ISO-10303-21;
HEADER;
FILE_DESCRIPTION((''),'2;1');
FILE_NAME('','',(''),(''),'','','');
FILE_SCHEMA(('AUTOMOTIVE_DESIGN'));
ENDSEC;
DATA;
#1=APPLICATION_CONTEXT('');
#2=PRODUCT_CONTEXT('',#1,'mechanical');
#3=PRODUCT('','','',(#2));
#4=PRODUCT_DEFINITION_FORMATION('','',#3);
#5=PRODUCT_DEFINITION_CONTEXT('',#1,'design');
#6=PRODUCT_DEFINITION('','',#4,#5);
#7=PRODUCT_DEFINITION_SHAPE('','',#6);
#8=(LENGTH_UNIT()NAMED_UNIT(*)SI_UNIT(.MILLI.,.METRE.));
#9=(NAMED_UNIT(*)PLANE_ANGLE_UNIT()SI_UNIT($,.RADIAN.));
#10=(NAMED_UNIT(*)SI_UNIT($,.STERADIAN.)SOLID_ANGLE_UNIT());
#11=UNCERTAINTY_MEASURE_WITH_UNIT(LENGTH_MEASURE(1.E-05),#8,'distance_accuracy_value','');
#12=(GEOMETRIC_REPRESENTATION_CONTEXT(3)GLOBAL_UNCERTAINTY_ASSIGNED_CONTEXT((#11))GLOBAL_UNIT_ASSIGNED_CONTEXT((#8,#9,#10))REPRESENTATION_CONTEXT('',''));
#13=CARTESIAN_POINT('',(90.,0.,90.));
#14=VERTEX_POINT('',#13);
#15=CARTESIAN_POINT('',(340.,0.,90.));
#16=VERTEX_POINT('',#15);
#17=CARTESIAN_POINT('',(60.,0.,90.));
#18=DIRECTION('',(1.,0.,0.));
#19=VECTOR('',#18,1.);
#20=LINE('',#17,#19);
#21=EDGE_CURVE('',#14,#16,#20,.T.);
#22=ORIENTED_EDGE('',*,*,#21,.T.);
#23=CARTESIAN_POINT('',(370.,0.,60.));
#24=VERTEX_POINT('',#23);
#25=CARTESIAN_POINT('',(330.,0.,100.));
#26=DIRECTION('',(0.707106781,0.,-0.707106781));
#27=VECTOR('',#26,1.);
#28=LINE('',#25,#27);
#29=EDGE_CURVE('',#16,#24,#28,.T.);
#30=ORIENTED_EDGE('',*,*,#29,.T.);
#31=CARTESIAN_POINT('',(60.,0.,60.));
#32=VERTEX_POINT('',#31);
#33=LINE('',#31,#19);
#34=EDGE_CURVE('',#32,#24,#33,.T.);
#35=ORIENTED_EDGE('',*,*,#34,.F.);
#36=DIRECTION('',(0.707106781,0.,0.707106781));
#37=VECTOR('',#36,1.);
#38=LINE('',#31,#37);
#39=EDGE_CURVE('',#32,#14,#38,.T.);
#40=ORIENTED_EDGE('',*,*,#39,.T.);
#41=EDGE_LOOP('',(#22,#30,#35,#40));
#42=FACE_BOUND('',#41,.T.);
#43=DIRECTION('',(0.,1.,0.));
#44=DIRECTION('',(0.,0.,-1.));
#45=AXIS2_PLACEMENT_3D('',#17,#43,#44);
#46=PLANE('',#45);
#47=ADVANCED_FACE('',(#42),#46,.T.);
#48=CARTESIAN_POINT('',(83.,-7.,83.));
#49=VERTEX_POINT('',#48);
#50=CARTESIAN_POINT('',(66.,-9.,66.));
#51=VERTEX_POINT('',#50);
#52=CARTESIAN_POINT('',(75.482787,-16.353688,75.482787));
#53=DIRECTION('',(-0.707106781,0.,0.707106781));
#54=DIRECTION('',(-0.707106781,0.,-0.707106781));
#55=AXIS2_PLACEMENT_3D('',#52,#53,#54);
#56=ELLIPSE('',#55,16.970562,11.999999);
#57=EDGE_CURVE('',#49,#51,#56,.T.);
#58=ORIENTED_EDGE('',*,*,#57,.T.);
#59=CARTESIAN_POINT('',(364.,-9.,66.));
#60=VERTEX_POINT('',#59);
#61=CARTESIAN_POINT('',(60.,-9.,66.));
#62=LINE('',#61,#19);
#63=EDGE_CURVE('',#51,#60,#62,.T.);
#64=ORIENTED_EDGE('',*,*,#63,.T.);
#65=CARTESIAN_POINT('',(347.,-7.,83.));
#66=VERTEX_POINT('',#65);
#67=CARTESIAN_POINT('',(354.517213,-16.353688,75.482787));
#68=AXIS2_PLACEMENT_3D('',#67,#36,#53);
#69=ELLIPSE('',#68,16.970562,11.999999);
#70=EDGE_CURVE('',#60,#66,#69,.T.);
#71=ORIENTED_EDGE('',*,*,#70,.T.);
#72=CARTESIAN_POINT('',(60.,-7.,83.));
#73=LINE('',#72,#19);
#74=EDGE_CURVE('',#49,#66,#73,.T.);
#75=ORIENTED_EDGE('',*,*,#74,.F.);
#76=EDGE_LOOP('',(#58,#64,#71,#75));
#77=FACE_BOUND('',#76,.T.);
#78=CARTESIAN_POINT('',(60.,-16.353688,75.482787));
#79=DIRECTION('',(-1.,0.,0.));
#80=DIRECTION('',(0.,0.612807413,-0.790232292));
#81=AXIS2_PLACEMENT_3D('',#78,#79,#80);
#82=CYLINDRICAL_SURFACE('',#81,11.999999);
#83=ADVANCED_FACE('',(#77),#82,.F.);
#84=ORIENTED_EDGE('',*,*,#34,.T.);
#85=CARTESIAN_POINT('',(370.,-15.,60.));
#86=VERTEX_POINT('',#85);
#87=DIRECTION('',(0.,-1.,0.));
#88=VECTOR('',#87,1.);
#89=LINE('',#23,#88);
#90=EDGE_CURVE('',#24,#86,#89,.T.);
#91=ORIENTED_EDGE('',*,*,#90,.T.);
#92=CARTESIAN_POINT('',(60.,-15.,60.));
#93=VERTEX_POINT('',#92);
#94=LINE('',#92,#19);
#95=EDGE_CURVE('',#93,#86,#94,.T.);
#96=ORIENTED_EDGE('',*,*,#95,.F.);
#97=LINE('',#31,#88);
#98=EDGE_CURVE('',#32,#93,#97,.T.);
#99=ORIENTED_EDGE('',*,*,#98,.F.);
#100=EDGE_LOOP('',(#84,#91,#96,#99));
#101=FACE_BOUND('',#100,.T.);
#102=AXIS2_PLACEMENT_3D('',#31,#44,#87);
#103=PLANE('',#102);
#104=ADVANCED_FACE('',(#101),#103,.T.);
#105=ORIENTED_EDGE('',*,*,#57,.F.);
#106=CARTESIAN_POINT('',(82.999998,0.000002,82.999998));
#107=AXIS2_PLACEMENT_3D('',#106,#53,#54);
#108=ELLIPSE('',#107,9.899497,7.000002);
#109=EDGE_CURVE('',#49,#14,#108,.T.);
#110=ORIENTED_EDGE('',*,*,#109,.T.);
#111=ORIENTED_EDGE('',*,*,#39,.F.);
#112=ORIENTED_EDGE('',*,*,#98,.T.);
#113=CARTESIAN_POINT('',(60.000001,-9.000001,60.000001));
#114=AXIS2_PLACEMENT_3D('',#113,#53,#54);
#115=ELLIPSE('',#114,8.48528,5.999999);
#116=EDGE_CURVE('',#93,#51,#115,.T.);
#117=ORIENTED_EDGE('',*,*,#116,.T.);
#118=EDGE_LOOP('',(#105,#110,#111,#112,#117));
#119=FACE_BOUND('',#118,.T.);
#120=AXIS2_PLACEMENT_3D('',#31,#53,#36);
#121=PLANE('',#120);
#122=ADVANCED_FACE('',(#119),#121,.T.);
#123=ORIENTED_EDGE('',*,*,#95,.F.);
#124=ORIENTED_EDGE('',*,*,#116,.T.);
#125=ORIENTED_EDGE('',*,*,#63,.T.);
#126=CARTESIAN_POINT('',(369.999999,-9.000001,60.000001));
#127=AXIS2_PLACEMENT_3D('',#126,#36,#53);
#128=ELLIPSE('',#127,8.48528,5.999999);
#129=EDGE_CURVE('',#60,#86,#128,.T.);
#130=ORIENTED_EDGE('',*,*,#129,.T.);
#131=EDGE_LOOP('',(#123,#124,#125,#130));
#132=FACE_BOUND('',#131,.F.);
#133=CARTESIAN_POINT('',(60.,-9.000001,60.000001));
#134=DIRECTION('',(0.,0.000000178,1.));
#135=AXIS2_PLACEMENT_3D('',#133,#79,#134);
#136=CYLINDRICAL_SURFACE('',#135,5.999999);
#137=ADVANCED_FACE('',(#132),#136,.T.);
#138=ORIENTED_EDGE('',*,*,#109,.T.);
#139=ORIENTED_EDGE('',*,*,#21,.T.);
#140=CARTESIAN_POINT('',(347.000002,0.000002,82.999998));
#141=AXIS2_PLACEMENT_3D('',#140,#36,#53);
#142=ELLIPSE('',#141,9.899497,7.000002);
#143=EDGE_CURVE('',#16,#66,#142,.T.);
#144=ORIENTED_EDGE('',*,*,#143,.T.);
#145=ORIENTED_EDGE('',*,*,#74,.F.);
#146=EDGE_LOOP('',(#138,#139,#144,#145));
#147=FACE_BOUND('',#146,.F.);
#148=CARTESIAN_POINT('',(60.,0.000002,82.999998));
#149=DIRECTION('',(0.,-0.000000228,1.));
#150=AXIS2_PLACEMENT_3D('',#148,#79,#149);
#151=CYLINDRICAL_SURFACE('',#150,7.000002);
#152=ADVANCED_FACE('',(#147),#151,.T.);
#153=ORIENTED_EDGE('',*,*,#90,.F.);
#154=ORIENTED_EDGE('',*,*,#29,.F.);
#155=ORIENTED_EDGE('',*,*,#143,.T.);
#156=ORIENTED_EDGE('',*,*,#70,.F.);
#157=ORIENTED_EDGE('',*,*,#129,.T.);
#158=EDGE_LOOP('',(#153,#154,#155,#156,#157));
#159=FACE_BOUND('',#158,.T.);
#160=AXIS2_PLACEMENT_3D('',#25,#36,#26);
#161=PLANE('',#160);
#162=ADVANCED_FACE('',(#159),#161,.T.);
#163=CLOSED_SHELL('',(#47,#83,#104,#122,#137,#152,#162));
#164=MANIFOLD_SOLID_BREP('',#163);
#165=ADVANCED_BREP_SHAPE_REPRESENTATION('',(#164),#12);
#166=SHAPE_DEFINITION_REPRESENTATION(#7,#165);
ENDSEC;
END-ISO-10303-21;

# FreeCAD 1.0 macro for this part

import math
import FreeCAD as App
import Part
import Sketcher
Q = App.Units.Quantity

doc = App.newDocument("Part")
body = doc.addObject("PartDesign::Body", "Body")

# Sketch on XZ plane
sketch1 = body.newObject("Sketcher::SketchObject", "Sketch")
sketch1.AttachmentSupport = (doc.getObject("XZ_Plane"), [""])
sketch1.MapMode = "FlatFace"
sketch1.addGeometry([
    Part.LineSegment(App.Vector(330, 100, 0), App.Vector(370, 60, 0)),
    Part.LineSegment(App.Vector(370, 60, 0), App.Vector(370, 100, 0)),
    Part.LineSegment(App.Vector(370, 100, 0), App.Vector(330, 100, 0)),
], False)
sketch1.addConstraint([
    Sketcher.Constraint("Coincident", 0, 2, 1, 1),
    Sketcher.Constraint("Coincident", 1, 2, 2, 1),
    Sketcher.Constraint("Coincident", 2, 2, 0, 1),
    Sketcher.Constraint("Vertical", 1),
    Sketcher.Constraint("Horizontal", 2),
    Sketcher.Constraint("Equal", 2, 1),
    Sketcher.Constraint("DistanceX", 2, 2, 2, 1, Q("40 mm")),
    Sketcher.Constraint("DistanceX", -1, 1, 0, 2, Q("370 mm")),
    Sketcher.Constraint("DistanceY", -1, 1, 0, 2, Q("60 mm")),
])
pad1 = body.newObject("PartDesign::Pad", "Pad")
pad1.Profile = sketch1
pad1.Length = 40
body2 = doc.addObject("PartDesign::Body", "Body001")

# Sketch on XZ plane
sketch2 = body2.newObject("Sketcher::SketchObject", "Sketch001")
sketch2.AttachmentSupport = (doc.getObject("XZ_Plane001"), [""])
sketch2.MapMode = "FlatFace"
sketch2.addGeometry([
    Part.LineSegment(App.Vector(60, 60, 0), App.Vector(100, 100, 0)),
    Part.LineSegment(App.Vector(100, 100, 0), App.Vector(60, 100, 0)),
    Part.LineSegment(App.Vector(60, 100, 0), App.Vector(60, 60, 0)),
], False)
sketch2.addConstraint([
    Sketcher.Constraint("Coincident", 0, 2, 1, 1),
    Sketcher.Constraint("Coincident", 1, 2, 2, 1),
    Sketcher.Constraint("Coincident", 2, 2, 0, 1),
    Sketcher.Constraint("Horizontal", 1),
    Sketcher.Constraint("Vertical", 2),
    Sketcher.Constraint("Equal", 1, 2),
    Sketcher.Constraint("DistanceX", 1, 2, 1, 1, Q("40 mm")),
    Sketcher.Constraint("DistanceX", -1, 1, 0, 2, Q("100 mm")),
    Sketcher.Constraint("DistanceY", -1, 1, 0, 2, Q("100 mm")),
])
pad2 = body2.newObject("PartDesign::Pad", "Pad001")
pad2.Profile = sketch2
pad2.Length = 40
body3 = doc.addObject("PartDesign::Body", "Body002")

# Sketch on YZ plane
sketch3 = body3.newObject("Sketcher::SketchObject", "Sketch002")
sketch3.AttachmentSupport = (doc.getObject("YZ_Plane002"), [""])
sketch3.MapMode = "FlatFace"
sketch3.AttachmentOffset = App.Placement(App.Vector(0, 0, 60), App.Rotation())
sketch3.addGeometry([
    Part.LineSegment(App.Vector(0, 60, 0), App.Vector(0, 90, 0)),  # 0
    Part.ArcOfCircle(Part.Circle(App.Vector(0, 83, 0), App.Vector(0, 0, 1), 7), math.radians(90), math.radians(180)),  # 1
    Part.ArcOfCircle(Part.Circle(App.Vector(-16, 75, 0), App.Vector(0, 0, 1), 12), math.radians(-52), math.radians(39)),  # 2
    Part.ArcOfCircle(Part.Circle(App.Vector(-9, 60, 0), App.Vector(0, 0, 1), 6), math.radians(90), math.radians(180)),  # 3
    Part.LineSegment(App.Vector(-15, 60, 0), App.Vector(0, 60, 0)),  # 4
], False)
sketch3.addConstraint([
    Sketcher.Constraint("Coincident", 0, 2, 1, 1),
    Sketcher.Constraint("Coincident", 1, 2, 2, 2),
    Sketcher.Constraint("Coincident", 2, 1, 3, 1),
    Sketcher.Constraint("Coincident", 3, 2, 4, 1),
    Sketcher.Constraint("Coincident", 4, 2, 0, 1),
    Sketcher.Constraint("Vertical", 0),
    Sketcher.Constraint("Horizontal", 4),
    Sketcher.Constraint("PointOnObject", 1, 3, -2),
    Sketcher.Constraint("PointOnObject", 0, 2, -2),
    Sketcher.Constraint("Vertical", 3, 3, 2, 1),
    Sketcher.Constraint("Radius", 1, Q("7.000002 mm")),
    Sketcher.Constraint("Radius", 2, Q("11.999999 mm")),
    Sketcher.Constraint("Radius", 3, Q("5.999999 mm")),
    Sketcher.Constraint("DistanceX", 4, 1, 4, 2, Q("15 mm")),
    Sketcher.Constraint("DistanceY", 0, 1, 0, 2, Q("30 mm")),
    Sketcher.Constraint("DistanceY", -1, 1, 1, 3, Q("82.999998 mm")),
    Sketcher.Constraint("DistanceY", -1, 1, 3, 3, Q("60.000001 mm")),
    Sketcher.Constraint("DistanceY", -1, 1, 1, 2, Q("83 mm")),
])
pad3 = body3.newObject("PartDesign::Pad", "Pad002")
pad3.Profile = sketch3
pad3.Length = 310
doc.recompute()

boolean = body3.newObject("PartDesign::Boolean", "Boolean")
boolean.Type = "Cut"
boolean.addObjects([body2])
doc.recompute()

boolean2 = body3.newObject("PartDesign::Boolean", "Boolean001")
boolean2.Type = "Cut"
boolean2.addObjects([body])

doc.recompute()
